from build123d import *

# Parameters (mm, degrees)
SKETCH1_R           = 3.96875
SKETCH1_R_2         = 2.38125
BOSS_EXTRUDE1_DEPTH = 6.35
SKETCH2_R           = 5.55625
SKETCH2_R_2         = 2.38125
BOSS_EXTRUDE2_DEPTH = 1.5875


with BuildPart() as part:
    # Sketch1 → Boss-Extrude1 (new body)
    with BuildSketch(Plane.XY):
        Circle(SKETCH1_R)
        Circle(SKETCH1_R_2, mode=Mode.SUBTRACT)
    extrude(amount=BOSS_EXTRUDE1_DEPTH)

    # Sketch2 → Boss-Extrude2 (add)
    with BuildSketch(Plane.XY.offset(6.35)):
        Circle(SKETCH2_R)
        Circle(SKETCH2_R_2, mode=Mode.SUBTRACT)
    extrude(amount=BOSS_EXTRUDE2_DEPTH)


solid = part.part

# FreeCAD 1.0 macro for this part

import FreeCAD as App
import Part
import Sketcher

V = App.Vector
Q = App.Units.Quantity

doc = App.newDocument("Part")
body = doc.addObject("PartDesign::Body", "Body")

sketch1 = body.newObject("Sketcher::SketchObject", "Sketch")
sketch1.AttachmentSupport = (doc.getObject("XY_Plane"), [""])
sketch1.MapMode = "FlatFace"
sketch1.addGeometry(Part.Circle(V(0, 0, 0), V(0, 0, 1), 4), False)
sketch1.addGeometry(Part.Circle(V(0, 0, 0), V(0, 0, 1), 2.4), False)
sketch1.addConstraint(Sketcher.Constraint("Coincident", 0, 3, -1, 1))
sketch1.addConstraint(Sketcher.Constraint("Coincident", 1, 3, -1, 1))
sketch1.addConstraint(Sketcher.Constraint("Diameter", 0, Q("0.3125 in")))
sketch1.addConstraint(Sketcher.Constraint("Diameter", 1, Q("0.1875 in")))
pad1 = body.newObject("PartDesign::Pad", "Pad")
pad1.Profile = sketch1
pad1.Length = Q("0.25 in")

sketch2 = body.newObject("Sketcher::SketchObject", "Sketch001")
sketch2.AttachmentSupport = (doc.getObject("XY_Plane"), [""])
sketch2.MapMode = "FlatFace"
sketch2.AttachmentOffset = App.Placement(V(0, 0, 0.25 * 25.4), App.Rotation())
sketch2.addGeometry(Part.Circle(V(0, 0, 0), V(0, 0, 1), 5.6), False)
sketch2.addGeometry(Part.Circle(V(0, 0, 0), V(0, 0, 1), 2.4), False)
sketch2.addConstraint(Sketcher.Constraint("Coincident", 0, 3, -1, 1))
sketch2.addConstraint(Sketcher.Constraint("Coincident", 1, 3, -1, 1))
sketch2.addConstraint(Sketcher.Constraint("Diameter", 0, Q("0.4375 in")))
sketch2.addConstraint(Sketcher.Constraint("Diameter", 1, Q("0.1875 in")))
pad2 = body.newObject("PartDesign::Pad", "Pad001")
pad2.Profile = sketch2
pad2.Length = Q("0.0625 in")

doc.recompute()
